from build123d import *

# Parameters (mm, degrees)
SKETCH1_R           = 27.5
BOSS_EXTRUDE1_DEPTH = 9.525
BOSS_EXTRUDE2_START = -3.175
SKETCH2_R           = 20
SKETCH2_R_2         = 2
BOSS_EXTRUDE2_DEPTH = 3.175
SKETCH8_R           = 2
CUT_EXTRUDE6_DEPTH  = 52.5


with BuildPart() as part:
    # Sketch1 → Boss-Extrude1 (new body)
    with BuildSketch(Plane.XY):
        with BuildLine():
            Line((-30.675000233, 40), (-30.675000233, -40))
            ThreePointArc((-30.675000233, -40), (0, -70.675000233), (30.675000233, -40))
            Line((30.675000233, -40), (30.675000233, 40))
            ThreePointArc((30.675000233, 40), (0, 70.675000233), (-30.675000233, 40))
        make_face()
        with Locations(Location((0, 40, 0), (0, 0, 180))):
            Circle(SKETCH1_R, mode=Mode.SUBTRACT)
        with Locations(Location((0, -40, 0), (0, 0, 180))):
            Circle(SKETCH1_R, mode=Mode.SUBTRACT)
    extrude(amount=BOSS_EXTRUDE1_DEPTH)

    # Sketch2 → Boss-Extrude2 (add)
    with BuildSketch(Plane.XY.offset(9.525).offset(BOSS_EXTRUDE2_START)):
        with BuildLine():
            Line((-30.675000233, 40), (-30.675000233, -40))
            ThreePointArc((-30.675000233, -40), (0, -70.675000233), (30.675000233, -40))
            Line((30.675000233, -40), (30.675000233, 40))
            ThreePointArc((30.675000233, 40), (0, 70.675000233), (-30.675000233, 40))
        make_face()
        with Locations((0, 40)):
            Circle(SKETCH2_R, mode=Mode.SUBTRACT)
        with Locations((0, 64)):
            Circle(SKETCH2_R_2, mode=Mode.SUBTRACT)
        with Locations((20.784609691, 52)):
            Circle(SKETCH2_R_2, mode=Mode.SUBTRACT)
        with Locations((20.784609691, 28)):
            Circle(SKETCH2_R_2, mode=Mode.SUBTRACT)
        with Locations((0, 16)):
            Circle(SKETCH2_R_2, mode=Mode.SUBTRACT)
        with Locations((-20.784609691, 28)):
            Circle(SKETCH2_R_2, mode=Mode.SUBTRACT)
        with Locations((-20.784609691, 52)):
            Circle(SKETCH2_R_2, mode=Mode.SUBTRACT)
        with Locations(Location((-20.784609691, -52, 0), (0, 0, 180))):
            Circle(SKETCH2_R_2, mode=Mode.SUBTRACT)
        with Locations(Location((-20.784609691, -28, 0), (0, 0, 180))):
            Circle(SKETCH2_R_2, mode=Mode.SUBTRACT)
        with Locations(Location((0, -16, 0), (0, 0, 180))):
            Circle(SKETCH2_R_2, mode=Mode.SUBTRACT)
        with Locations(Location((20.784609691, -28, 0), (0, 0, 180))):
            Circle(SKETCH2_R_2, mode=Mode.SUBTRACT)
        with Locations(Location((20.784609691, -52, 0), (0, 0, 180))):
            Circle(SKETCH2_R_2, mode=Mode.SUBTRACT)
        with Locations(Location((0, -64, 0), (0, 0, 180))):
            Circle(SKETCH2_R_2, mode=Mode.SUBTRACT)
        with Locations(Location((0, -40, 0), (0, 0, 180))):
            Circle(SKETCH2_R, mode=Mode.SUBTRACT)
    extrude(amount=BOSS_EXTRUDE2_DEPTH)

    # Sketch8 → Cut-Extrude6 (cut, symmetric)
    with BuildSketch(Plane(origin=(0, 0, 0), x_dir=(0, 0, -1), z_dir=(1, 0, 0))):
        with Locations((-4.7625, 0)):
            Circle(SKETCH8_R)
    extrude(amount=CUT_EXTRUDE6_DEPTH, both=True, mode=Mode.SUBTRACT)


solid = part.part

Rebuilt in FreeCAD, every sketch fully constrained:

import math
import FreeCAD as App
import Part
import Sketcher
from FreeCAD import Vector
Q = App.Units.Quantity

doc = App.newDocument("Part")
body = doc.addObject("PartDesign::Body", "Body")

sketch1 = body.newObject("Sketcher::SketchObject", "Sketch")
sketch1.AttachmentSupport = (doc.getObject("XY_Plane"), [""])
sketch1.MapMode = "FlatFace"
sketch1.addGeometry([
    Part.LineSegment(Vector(-30.675, 40, 0), Vector(-30.675, -40, 0)),
    Part.ArcOfCircle(Part.Circle(Vector(0, -40, 0), Vector(0, 0, 1), 30.675), math.radians(180), math.radians(360)),
    Part.LineSegment(Vector(30.675, -40, 0), Vector(30.675, 40, 0)),
    Part.ArcOfCircle(Part.Circle(Vector(0, 40, 0), Vector(0, 0, 1), 30.675), math.radians(0), math.radians(180)),
    Part.Circle(Vector(0, -40, 0), Vector(0, 0, 1), 27.5),
    Part.Circle(Vector(0, 40, 0), Vector(0, 0, 1), 27.5),
], False)
sketch1.addConstraint([
    Sketcher.Constraint("Tangent", 0, 2, 1, 1),
    Sketcher.Constraint("Tangent", 1, 2, 2, 1),
    Sketcher.Constraint("Tangent", 2, 2, 3, 1),
    Sketcher.Constraint("Tangent", 3, 2, 0, 1),
    Sketcher.Constraint("Vertical", 0),
    Sketcher.Constraint("Vertical", 2),
    Sketcher.Constraint("Coincident", 4, 3, 1, 3),
    Sketcher.Constraint("Coincident", 5, 3, 3, 3),
    Sketcher.Constraint("Equal", 4, 5),
    Sketcher.Constraint("Symmetric", 1, 3, 3, 3, -1, 1),
    Sketcher.Constraint("Diameter", 4, Q("55 mm")),
    Sketcher.Constraint("DistanceY", 0, 2, 0, 1, Q("80 mm")),
    Sketcher.Constraint("Radius", 1, Q("30.675 mm")),
])
pad1 = body.newObject("PartDesign::Pad", "Pad")
pad1.Profile = sketch1
pad1.Length = 9.525

sketch2 = body.newObject("Sketcher::SketchObject", "Sketch001")
sketch2.AttachmentSupport = (doc.getObject("XY_Plane"), [""])
sketch2.MapMode = "FlatFace"
sketch2.AttachmentOffset = App.Placement(Vector(0, 0, 6.35), App.Rotation())
sketch2.addGeometry([
    Part.LineSegment(Vector(-30.675, 40, 0), Vector(-30.675, -40, 0)),
    Part.ArcOfCircle(Part.Circle(Vector(0, -40, 0), Vector(0, 0, 1), 30.675), math.radians(180), math.radians(360)),
    Part.LineSegment(Vector(30.675, -40, 0), Vector(30.675, 40, 0)),
    Part.ArcOfCircle(Part.Circle(Vector(0, 40, 0), Vector(0, 0, 1), 30.675), math.radians(0), math.radians(180)),
    Part.Circle(Vector(-20.78461, -52, 0), Vector(0, 0, 1), 2),
    Part.Circle(Vector(-20.78461, -28, 0), Vector(0, 0, 1), 2),
    Part.Circle(Vector(0, -64, 0), Vector(0, 0, 1), 2),
    Part.Circle(Vector(0, -40, 0), Vector(0, 0, 1), 20),
    Part.Circle(Vector(20.78461, -52, 0), Vector(0, 0, 1), 2),
    Part.Circle(Vector(0, -16, 0), Vector(0, 0, 1), 2),
    Part.Circle(Vector(20.78461, -28, 0), Vector(0, 0, 1), 2),
    Part.Circle(Vector(-20.78461, 28, 0), Vector(0, 0, 1), 2),
    Part.Circle(Vector(-20.78461, 52, 0), Vector(0, 0, 1), 2),
    Part.Circle(Vector(0, 16, 0), Vector(0, 0, 1), 2),
    Part.Circle(Vector(20.78461, 28, 0), Vector(0, 0, 1), 2),
    Part.Circle(Vector(0, 40, 0), Vector(0, 0, 1), 20),
    Part.Circle(Vector(0, 64, 0), Vector(0, 0, 1), 2),
    Part.Circle(Vector(20.78461, 52, 0), Vector(0, 0, 1), 2),
], False)
sketch2.addConstraint([
    Sketcher.Constraint("Tangent", 0, 2, 1, 1),
    Sketcher.Constraint("Tangent", 1, 2, 2, 1),
    Sketcher.Constraint("Tangent", 2, 2, 3, 1),
    Sketcher.Constraint("Tangent", 3, 2, 0, 1),
    Sketcher.Constraint("Vertical", 0),
    Sketcher.Constraint("Vertical", 2),
    Sketcher.Constraint("Coincident", 7, 3, 1, 3),
    Sketcher.Constraint("Coincident", 15, 3, 3, 3),
    Sketcher.Constraint("Equal", 4, 5),
    Sketcher.Constraint("Equal", 5, 6),
    Sketcher.Constraint("Equal", 6, 8),
    Sketcher.Constraint("Equal", 8, 9),
    Sketcher.Constraint("Equal", 9, 10),
    Sketcher.Constraint("Equal", 10, 11),
    Sketcher.Constraint("Equal", 11, 12),
    Sketcher.Constraint("Equal", 12, 13),
    Sketcher.Constraint("Equal", 13, 14),
    Sketcher.Constraint("Equal", 7, 15),
    Sketcher.Constraint("Equal", 14, 16),
    Sketcher.Constraint("Equal", 16, 17),
    Sketcher.Constraint("Symmetric", 1, 3, 3, 3, -1, 1),
    Sketcher.Constraint("Symmetric", 10, 3, 11, 3, -1, 1),
    Sketcher.Constraint("Symmetric", 8, 3, 12, 3, -1, 1),
    Sketcher.Constraint("Symmetric", 9, 3, 13, 3, -1, 1),
    Sketcher.Constraint("Symmetric", 5, 3, 14, 3, -1, 1),
    Sketcher.Constraint("Symmetric", 6, 3, 16, 3, -1, 1),
    Sketcher.Constraint("Symmetric", 4, 3, 17, 3, -1, 1),
    Sketcher.Constraint("Symmetric", 4, 3, 8, 3, -2),
    Sketcher.Constraint("Symmetric", 5, 3, 10, 3, -2),
    Sketcher.Constraint("PointOnObject", 6, 3, -2),
    Sketcher.Constraint("PointOnObject", 9, 3, -2),
    Sketcher.Constraint("Vertical", 4, 3, 5, 3),
    Sketcher.Constraint("Diameter", 4, Q("4 mm")),
    Sketcher.Constraint("Diameter", 7, Q("40 mm")),
    Sketcher.Constraint("DistanceY", 0, 2, 0, 1, Q("80 mm")),
    Sketcher.Constraint("DistanceY", 4, 3, -1, 1, Q("52 mm")),
    Sketcher.Constraint("DistanceY", 5, 3, -1, 1, Q("28 mm")),
    Sketcher.Constraint("DistanceY", 6, 3, -1, 1, Q("64 mm")),
    Sketcher.Constraint("DistanceY", 9, 3, -1, 1, Q("16 mm")),
    Sketcher.Constraint("Radius", 1, Q("30.675 mm")),
    Sketcher.Constraint("DistanceX", 4, 3, -1, 1, Q("20.78461 mm")),
])
pad2 = body.newObject("PartDesign::Pad", "Pad001")
pad2.Profile = sketch2
pad2.Length = 3.175

sketch3 = body.newObject("Sketcher::SketchObject", "Sketch002")
sketch3.AttachmentSupport = (doc.getObject("YZ_Plane"), [""])
sketch3.MapMode = "FlatFace"
sketch3.addGeometry(Part.Circle(Vector(0, 4.7625, 0), Vector(0, 0, 1), 2), False)
sketch3.addConstraint([
    Sketcher.Constraint("PointOnObject", 0, 3, -2),
    Sketcher.Constraint("Diameter", 0, Q("4 mm")),
    Sketcher.Constraint("DistanceY", -1, 1, 0, 3, Q("4.7625 mm")),
])
pocket1 = body.newObject("PartDesign::Pocket", "Pocket")
pocket1.Profile = sketch3
pocket1.Length = 105
pocket1.Midplane = True

doc.recompute()
